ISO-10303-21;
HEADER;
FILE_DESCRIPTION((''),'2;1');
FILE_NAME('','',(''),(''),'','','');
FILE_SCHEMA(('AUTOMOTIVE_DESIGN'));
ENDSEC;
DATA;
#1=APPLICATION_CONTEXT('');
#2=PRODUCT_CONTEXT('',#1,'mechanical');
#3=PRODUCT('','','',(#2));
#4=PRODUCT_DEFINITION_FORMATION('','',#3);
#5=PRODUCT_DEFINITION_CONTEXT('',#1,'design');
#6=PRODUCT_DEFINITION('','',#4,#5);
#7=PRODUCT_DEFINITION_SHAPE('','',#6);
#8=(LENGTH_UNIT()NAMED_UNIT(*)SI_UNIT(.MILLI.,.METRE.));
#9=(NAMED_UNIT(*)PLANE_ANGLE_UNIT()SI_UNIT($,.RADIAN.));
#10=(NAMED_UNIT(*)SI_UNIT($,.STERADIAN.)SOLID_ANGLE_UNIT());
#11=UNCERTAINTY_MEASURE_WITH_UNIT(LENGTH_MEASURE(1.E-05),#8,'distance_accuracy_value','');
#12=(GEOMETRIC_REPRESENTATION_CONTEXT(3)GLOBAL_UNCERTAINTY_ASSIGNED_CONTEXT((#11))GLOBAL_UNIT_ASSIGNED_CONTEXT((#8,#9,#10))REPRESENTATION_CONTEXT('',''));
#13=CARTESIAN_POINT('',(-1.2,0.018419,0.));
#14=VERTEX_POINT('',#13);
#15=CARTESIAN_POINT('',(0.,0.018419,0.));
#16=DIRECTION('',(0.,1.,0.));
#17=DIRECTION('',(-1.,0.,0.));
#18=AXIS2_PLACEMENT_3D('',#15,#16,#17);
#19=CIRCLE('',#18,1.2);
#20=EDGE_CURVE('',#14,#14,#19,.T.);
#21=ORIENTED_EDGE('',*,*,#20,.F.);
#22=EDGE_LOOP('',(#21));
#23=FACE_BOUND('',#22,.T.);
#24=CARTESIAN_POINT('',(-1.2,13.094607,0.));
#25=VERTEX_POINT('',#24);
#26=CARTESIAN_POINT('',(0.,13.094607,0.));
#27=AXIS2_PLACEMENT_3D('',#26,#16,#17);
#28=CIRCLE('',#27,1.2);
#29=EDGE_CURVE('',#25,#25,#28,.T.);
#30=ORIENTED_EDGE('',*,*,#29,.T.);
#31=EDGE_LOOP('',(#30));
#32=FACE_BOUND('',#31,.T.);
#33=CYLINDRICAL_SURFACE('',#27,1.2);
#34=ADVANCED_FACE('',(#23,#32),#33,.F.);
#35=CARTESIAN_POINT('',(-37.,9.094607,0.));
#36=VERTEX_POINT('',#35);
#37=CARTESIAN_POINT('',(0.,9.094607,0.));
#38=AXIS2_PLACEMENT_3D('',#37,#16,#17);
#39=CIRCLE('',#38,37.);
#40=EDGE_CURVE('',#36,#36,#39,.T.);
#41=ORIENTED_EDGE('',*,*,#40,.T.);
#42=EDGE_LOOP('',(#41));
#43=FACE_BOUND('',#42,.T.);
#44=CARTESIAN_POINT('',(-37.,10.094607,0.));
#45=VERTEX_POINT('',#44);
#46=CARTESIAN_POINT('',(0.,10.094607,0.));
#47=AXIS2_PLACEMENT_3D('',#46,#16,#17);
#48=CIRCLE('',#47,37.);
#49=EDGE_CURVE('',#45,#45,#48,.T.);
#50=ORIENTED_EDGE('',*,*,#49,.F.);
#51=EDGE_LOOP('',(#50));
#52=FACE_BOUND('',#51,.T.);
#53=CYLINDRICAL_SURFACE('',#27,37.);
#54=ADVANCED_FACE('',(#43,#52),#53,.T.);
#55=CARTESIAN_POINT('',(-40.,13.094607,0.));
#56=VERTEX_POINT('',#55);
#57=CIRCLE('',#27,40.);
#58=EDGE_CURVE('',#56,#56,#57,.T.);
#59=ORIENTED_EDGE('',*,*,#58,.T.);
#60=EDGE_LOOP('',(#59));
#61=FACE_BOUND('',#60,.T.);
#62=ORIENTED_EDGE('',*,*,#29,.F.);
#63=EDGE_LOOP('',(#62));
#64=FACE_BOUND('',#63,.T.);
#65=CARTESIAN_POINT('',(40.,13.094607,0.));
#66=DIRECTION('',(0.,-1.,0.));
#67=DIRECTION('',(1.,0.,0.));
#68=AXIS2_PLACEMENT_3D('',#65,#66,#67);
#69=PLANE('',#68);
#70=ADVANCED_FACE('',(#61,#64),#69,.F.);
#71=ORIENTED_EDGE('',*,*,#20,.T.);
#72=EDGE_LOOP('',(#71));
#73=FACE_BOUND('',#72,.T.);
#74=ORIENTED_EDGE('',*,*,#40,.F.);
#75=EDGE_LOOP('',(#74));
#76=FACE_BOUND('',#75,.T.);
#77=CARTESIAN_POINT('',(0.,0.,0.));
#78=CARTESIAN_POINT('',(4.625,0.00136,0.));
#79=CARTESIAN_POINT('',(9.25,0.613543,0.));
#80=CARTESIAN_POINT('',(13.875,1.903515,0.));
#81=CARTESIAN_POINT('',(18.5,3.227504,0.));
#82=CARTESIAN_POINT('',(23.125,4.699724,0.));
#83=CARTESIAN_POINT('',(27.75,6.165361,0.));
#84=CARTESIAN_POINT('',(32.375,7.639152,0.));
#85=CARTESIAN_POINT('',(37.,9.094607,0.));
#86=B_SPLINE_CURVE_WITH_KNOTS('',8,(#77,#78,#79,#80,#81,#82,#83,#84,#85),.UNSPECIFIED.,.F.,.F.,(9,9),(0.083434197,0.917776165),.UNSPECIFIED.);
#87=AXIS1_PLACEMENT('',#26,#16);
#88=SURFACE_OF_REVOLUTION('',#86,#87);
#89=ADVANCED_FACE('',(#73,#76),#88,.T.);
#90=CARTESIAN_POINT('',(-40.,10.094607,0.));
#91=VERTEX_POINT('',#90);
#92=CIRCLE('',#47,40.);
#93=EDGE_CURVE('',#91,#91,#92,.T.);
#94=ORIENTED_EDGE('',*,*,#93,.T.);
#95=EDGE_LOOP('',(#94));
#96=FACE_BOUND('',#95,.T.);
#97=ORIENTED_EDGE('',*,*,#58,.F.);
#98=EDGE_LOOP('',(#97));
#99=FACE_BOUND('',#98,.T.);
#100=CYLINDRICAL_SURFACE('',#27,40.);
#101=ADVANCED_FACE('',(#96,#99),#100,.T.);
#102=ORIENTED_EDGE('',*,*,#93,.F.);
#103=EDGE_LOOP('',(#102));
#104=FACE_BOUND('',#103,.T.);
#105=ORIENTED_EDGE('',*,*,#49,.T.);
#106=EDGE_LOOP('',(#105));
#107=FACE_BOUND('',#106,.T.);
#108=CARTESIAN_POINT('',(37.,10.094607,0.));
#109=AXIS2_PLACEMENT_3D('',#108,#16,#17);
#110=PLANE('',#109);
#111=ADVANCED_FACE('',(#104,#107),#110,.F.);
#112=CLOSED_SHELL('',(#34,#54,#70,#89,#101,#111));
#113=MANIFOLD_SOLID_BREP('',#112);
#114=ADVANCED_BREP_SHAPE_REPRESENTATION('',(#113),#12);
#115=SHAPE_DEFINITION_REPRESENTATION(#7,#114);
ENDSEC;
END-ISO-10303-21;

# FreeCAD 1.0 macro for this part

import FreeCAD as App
import Part
import Sketcher

V = App.Vector
Q = App.Units.Quantity

doc = App.newDocument("Part")
params = doc.addObject("Spreadsheet::Sheet", "Params")
for row, (alias, value) in enumerate([
    ("sketch1_width", "3 mm"),
    ("sketch1_height", "5 mm"),
    ("sketch1_height2", "1 mm"),
    ("sketch1_width2", "1.2 mm"),
    ("revolution_angle", "360 deg"),
    ("sketch2_diameter", "2.4 mm"),
], start=1):
    params.set(f"A{row}", alias)
    params.set(f"B{row}", "=" + value)
    params.setAlias(f"B{row}", alias)

body = doc.addObject("PartDesign::Body", "Body")

# Sketch on XY plane
sketch1 = body.newObject("Sketcher::SketchObject", "Sketch")
sketch1.AttachmentSupport = (doc.getObject("XY_Plane"), [""])
sketch1.MapMode = "FlatFace"
sketch1.addGeometry(Part.LineSegment(V(1.2, 13.094607, 0), V(1.2, 8.094607, 0)), False)
sketch1.addGeometry(Part.LineSegment(V(1.2, 8.094607, 0), V(0, 8.094607, 0)), False)
sketch1.addGeometry(Part.LineSegment(V(0, 8.094607, 0), V(0, 0, 0)), False)
sketch1.addGeometry(Part.BSplineCurve([V(0, 0, 0), V(4.625, 0.00136, 0), V(9.25, 0.613543, 0), V(13.875, 1.903515, 0), V(18.5, 3.227504, 0), V(23.125, 4.699724, 0), V(27.75, 6.165361, 0), V(32.375, 7.639152, 0), V(37, 9.094607, 0)], [9, 9], [0.083434197, 0.917776165], False, 8, [1, 1, 1, 1, 1, 1, 1, 1, 1], False), False)
sketch1.addGeometry(Part.LineSegment(V(37, 9.094607, 0), V(37, 10.094607, 0)), False)
sketch1.addGeometry(Part.LineSegment(V(37, 10.094607, 0), V(40, 10.094607, 0)), False)
sketch1.addGeometry(Part.LineSegment(V(40, 10.094607, 0), V(40, 13.094607, 0)), False)
sketch1.addGeometry(Part.LineSegment(V(40, 13.094607, 0), V(1.2, 13.094607, 0)), False)
sketch1.addConstraint(Sketcher.Constraint("Block", 3))
sketch1.addConstraint(Sketcher.Constraint("Coincident", 0, 2, 1, 1))
sketch1.addConstraint(Sketcher.Constraint("Coincident", 1, 2, 2, 1))
sketch1.addConstraint(Sketcher.Constraint("Coincident", 2, 2, 3, 1))
sketch1.addConstraint(Sketcher.Constraint("Coincident", 3, 2, 4, 1))
sketch1.addConstraint(Sketcher.Constraint("Coincident", 4, 2, 5, 1))
sketch1.addConstraint(Sketcher.Constraint("Coincident", 5, 2, 6, 1))
sketch1.addConstraint(Sketcher.Constraint("Coincident", 6, 2, 7, 1))
sketch1.addConstraint(Sketcher.Constraint("Coincident", 7, 2, 0, 1))
sketch1.addConstraint(Sketcher.Constraint("Vertical", 0))
sketch1.addConstraint(Sketcher.Constraint("Horizontal", 1))
sketch1.addConstraint(Sketcher.Constraint("Vertical", 2))
sketch1.addConstraint(Sketcher.Constraint("Vertical", 4))
sketch1.addConstraint(Sketcher.Constraint("Horizontal", 5))
sketch1.addConstraint(Sketcher.Constraint("Vertical", 6))
sketch1.addConstraint(Sketcher.Constraint("Horizontal", 7))
sketch1.addConstraint(Sketcher.Constraint("Equal", 5, 6))
sketch1.addConstraint(Sketcher.Constraint("DistanceX", 5, 1, 5, 2, Q("3 mm")))
sketch1.addConstraint(Sketcher.Constraint("DistanceY", 0, 2, 0, 1, Q("5 mm")))
sketch1.addConstraint(Sketcher.Constraint("DistanceY", 4, 1, 4, 2, Q("1 mm")))
sketch1.addConstraint(Sketcher.Constraint("DistanceX", 1, 2, 1, 1, Q("1.2 mm")))
sketch1.setExpression("Constraints[17]", "Params.sketch1_width")
sketch1.setExpression("Constraints[18]", "Params.sketch1_height")
sketch1.setExpression("Constraints[19]", "Params.sketch1_height2")
sketch1.setExpression("Constraints[20]", "Params.sketch1_width2")
revolution = body.newObject("PartDesign::Revolution", "Revolution")
revolution.Profile = sketch1
revolution.ReferenceAxis = (sketch1, ["V_Axis"])
revolution.setExpression("Angle", "Params.revolution_angle")

# Sketch on XZ plane
sketch2 = body.newObject("Sketcher::SketchObject", "Sketch001")
sketch2.AttachmentSupport = (doc.getObject("XZ_Plane"), [""])
sketch2.MapMode = "FlatFace"
sketch2.AttachmentOffset = App.Placement(V(0, 0, -13.094607), App.Rotation())
sketch2.addGeometry(Part.Circle(V(0, 0, 0), V(0, 0, 1), 1.2), False)
sketch2.addConstraint(Sketcher.Constraint("Coincident", 0, 3, -1, 1))
sketch2.addConstraint(Sketcher.Constraint("Diameter", 0, Q("2.4 mm")))
sketch2.setExpression("Constraints[1]", "Params.sketch2_diameter")
pocket1 = body.newObject("PartDesign::Pocket", "Pocket")
pocket1.Profile = sketch2
pocket1.Type = "ThroughAll"
pocket1.Reversed = True

doc.recompute()
